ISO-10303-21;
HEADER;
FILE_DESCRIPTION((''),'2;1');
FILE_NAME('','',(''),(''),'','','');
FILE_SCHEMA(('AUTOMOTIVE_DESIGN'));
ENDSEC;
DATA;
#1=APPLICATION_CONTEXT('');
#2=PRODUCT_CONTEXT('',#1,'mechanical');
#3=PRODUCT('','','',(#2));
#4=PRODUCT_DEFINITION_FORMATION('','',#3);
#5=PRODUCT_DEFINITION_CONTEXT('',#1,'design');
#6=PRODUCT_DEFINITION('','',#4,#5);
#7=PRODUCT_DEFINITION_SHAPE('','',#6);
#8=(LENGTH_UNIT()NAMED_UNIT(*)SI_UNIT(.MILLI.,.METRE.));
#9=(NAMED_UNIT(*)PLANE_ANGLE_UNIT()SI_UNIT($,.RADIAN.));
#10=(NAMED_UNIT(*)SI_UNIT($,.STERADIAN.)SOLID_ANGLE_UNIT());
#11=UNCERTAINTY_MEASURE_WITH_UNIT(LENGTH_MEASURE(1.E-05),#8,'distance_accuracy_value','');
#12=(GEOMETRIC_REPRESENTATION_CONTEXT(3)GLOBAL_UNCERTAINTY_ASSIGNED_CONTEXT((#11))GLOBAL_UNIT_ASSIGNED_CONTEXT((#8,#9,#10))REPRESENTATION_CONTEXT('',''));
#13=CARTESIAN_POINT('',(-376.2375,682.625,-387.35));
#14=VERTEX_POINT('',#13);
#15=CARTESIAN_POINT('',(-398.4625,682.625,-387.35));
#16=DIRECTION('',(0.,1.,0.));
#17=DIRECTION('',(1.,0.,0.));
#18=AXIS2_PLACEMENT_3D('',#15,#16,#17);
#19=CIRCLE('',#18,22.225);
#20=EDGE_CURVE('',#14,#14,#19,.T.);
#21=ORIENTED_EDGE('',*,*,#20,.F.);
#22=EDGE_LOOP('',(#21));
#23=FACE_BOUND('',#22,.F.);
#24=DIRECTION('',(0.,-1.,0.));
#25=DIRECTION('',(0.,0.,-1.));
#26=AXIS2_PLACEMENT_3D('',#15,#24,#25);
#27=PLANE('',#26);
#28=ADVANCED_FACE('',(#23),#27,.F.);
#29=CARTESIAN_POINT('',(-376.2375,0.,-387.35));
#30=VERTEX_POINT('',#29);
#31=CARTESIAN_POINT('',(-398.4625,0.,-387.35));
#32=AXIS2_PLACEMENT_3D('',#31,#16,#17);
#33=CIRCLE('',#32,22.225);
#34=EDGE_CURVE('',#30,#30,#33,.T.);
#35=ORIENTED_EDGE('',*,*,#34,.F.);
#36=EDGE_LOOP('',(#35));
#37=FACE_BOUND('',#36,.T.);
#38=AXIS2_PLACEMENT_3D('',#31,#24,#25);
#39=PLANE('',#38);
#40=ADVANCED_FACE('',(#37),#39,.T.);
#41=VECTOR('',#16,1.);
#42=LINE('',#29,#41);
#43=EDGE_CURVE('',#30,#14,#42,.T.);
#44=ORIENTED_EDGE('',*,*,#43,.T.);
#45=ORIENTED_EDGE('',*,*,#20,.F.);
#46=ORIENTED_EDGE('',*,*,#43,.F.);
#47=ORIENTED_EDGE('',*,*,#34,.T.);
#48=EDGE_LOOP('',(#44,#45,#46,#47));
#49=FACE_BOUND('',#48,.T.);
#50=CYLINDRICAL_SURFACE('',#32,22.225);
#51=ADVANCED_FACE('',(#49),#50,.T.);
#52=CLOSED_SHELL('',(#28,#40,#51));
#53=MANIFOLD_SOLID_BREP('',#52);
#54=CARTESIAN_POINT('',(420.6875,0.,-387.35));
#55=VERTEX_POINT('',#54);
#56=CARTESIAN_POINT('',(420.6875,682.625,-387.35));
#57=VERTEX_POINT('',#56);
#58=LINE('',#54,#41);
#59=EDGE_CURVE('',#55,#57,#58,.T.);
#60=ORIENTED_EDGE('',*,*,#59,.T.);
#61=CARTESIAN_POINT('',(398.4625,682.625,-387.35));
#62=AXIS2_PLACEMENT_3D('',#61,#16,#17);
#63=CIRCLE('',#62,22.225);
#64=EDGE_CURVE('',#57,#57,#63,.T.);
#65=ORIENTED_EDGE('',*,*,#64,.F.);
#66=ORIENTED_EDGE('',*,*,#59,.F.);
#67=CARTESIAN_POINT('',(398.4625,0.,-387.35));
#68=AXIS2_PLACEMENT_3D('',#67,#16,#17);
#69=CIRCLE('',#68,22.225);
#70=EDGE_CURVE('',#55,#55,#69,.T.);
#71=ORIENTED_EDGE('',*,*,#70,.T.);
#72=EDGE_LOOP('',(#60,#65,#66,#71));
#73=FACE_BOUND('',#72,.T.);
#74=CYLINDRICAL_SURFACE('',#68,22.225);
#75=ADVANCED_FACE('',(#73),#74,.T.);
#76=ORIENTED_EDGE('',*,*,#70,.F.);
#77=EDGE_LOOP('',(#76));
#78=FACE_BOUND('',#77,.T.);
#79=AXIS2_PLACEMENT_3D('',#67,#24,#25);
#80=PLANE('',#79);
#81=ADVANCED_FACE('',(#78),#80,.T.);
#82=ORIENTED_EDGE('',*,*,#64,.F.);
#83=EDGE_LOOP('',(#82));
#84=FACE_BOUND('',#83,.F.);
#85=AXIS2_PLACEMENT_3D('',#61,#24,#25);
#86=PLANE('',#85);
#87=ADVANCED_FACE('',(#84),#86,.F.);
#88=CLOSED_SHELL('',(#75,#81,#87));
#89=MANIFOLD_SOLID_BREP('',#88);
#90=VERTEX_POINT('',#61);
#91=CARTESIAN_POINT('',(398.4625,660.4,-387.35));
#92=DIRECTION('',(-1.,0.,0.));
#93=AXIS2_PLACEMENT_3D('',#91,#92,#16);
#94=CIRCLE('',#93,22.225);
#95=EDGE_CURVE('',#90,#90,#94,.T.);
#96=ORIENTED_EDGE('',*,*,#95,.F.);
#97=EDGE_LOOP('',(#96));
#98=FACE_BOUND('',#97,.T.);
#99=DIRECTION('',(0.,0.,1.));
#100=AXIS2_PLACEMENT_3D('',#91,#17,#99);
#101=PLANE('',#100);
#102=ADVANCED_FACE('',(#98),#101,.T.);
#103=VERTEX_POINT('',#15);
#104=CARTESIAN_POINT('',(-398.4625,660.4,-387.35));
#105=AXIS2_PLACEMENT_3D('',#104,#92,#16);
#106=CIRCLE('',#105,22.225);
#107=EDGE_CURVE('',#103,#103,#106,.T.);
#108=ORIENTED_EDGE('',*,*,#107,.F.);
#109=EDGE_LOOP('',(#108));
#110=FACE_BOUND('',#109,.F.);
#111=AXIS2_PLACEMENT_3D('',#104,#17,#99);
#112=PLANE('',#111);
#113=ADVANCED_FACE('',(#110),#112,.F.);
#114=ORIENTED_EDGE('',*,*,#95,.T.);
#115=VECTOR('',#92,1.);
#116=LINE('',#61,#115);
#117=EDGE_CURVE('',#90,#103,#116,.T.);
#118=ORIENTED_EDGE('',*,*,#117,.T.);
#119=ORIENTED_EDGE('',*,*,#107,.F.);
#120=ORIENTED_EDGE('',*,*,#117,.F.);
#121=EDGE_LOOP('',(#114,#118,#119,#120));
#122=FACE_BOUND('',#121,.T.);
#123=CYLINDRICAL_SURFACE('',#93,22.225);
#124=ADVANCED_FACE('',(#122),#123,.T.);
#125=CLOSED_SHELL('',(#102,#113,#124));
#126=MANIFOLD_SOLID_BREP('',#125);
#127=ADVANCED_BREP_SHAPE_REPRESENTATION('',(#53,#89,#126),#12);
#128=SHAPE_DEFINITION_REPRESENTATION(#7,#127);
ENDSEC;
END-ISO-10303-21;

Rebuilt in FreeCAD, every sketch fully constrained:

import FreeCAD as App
import Part
import Sketcher
Q = App.Units.Quantity

doc = App.newDocument("Part")
body = doc.addObject("PartDesign::Body", "Body")

# Sketch on XZ plane
sketch1 = body.newObject("Sketcher::SketchObject", "Sketch")
sketch1.AttachmentSupport = (doc.getObject("XZ_Plane"), [""])
sketch1.MapMode = "FlatFace"
sketch1.addGeometry(Part.Circle(App.Vector(-398, -387, 0), App.Vector(0, 0, 1), 22), False)
sketch1.addConstraint([
    Sketcher.Constraint("Diameter", 0, Q("1.75 in")),
    Sketcher.Constraint("DistanceY", 0, 3, -1, 1, Q("15.25 in")),
    Sketcher.Constraint("DistanceX", 0, 3, -1, 1, Q("15.6875 in")),
])

# Sketch on XY plane
sketch2 = body.newObject("Sketcher::SketchObject", "Sketch001")
sketch2.AttachmentSupport = (doc.getObject("XY_Plane"), [""])
sketch2.MapMode = "FlatFace"
sketch2.AttachmentOffset = App.Placement(App.Vector(0, 0, -15.25 * 25.4), App.Rotation())
sketch2.addGeometry(Part.LineSegment(App.Vector(-398, 0, 0), App.Vector(-398, 683, 0)), False)
sketch2.addConstraint([
    Sketcher.Constraint("Vertical", 0),
    Sketcher.Constraint("PointOnObject", 0, 1, -1),
    Sketcher.Constraint("DistanceY", 0, 1, 0, 2, Q("26.875 in")),
    Sketcher.Constraint("DistanceX", 0, 1, -1, 1, Q("15.6875 in")),
])
doc.recompute()

additivepipe = body.newObject("PartDesign::AdditivePipe", "AdditivePipe")
additivepipe.Profile = sketch1
additivepipe.Spine = (sketch2, ["Edge1"])
body2 = doc.addObject("PartDesign::Body", "Body001")

# Sketch on XZ plane
sketch3 = body2.newObject("Sketcher::SketchObject", "Sketch002")
sketch3.AttachmentSupport = (doc.getObject("XZ_Plane001"), [""])
sketch3.MapMode = "FlatFace"
sketch3.addGeometry(Part.Circle(App.Vector(398, -387, 0), App.Vector(0, 0, 1), 22), False)
sketch3.addConstraint([
    Sketcher.Constraint("Diameter", 0, Q("1.75 in")),
    Sketcher.Constraint("DistanceY", 0, 3, -1, 1, Q("15.25 in")),
    Sketcher.Constraint("DistanceX", -1, 1, 0, 3, Q("15.6875 in")),
])

# Sketch on XY plane
sketch4 = body2.newObject("Sketcher::SketchObject", "Sketch003")
sketch4.AttachmentSupport = (doc.getObject("XY_Plane001"), [""])
sketch4.MapMode = "FlatFace"
sketch4.AttachmentOffset = App.Placement(App.Vector(0, 0, -15.25 * 25.4), App.Rotation())
sketch4.addGeometry(Part.LineSegment(App.Vector(398, 0, 0), App.Vector(398, 683, 0)), False)
sketch4.addConstraint([
    Sketcher.Constraint("Vertical", 0),
    Sketcher.Constraint("PointOnObject", 0, 1, -1),
    Sketcher.Constraint("DistanceY", 0, 1, 0, 2, Q("26.875 in")),
    Sketcher.Constraint("DistanceX", -1, 1, 0, 1, Q("15.6875 in")),
])
doc.recompute()

additivepipe2 = body2.newObject("PartDesign::AdditivePipe", "AdditivePipe001")
additivepipe2.Profile = sketch3
additivepipe2.Spine = (sketch4, ["Edge1"])
body3 = doc.addObject("PartDesign::Body", "Body002")

# Sketch on YZ plane
sketch5 = body3.newObject("Sketcher::SketchObject", "Sketch004")
sketch5.AttachmentSupport = (doc.getObject("YZ_Plane002"), [""])
sketch5.MapMode = "FlatFace"
sketch5.addGeometry(Part.Circle(App.Vector(660, -387, 0), App.Vector(0, 0, 1), 22), False)
sketch5.addConstraint([
    Sketcher.Constraint("Diameter", 0, Q("1.75 in")),
    Sketcher.Constraint("DistanceX", -1, 1, 0, 3, Q("26 in")),
    Sketcher.Constraint("DistanceY", 0, 3, -1, 1, Q("15.25 in")),
])

# Sketch on XY plane
sketch6 = body3.newObject("Sketcher::SketchObject", "Sketch005")
sketch6.AttachmentSupport = (doc.getObject("XY_Plane002"), [""])
sketch6.MapMode = "FlatFace"
sketch6.AttachmentOffset = App.Placement(App.Vector(0, 0, -15.25 * 25.4), App.Rotation())
sketch6.addGeometry(Part.LineSegment(App.Vector(398, 660, 0), App.Vector(-398, 660, 0)), False)
sketch6.addConstraint([
    Sketcher.Constraint("Horizontal", 0),
    Sketcher.Constraint("DistanceY", -1, 1, 0, 1, Q("26 in")),
    Sketcher.Constraint("DistanceX", 0, 2, 0, 1, Q("31.375 in")),
    Sketcher.Constraint("DistanceX", -1, 1, 0, 1, Q("15.6875 in")),
])
doc.recompute()

additivepipe3 = body3.newObject("PartDesign::AdditivePipe", "AdditivePipe002")
additivepipe3.Profile = sketch5
additivepipe3.Spine = (sketch6, ["Edge1"])

doc.recompute()
